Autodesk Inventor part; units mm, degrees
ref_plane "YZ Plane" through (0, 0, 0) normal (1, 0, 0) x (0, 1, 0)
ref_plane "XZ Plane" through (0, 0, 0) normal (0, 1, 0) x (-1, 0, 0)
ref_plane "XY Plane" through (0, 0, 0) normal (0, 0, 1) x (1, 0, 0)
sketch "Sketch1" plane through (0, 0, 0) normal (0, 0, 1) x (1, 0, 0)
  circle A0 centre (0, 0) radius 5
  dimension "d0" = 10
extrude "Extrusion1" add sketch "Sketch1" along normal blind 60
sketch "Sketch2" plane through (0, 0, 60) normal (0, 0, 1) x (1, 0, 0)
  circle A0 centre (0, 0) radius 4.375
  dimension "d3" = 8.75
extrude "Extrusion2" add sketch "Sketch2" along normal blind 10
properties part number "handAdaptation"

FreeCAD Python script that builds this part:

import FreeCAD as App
import Part
import Sketcher
Q = App.Units.Quantity

doc = App.newDocument("Part")
params = doc.addObject("Spreadsheet::Sheet", "Params")
for row, (alias, value) in enumerate([
    ("sketch1_diameter", "10 mm"),
    ("pad1_length", "60 mm"),
    ("sketch2_diameter", "8.75 mm"),
    ("pad2_length", "10 mm"),
], start=1):
    params.set(f"A{row}", alias)
    params.set(f"B{row}", "=" + value)
    params.setAlias(f"B{row}", alias)

body = doc.addObject("PartDesign::Body", "Body")

sketch1 = body.newObject("Sketcher::SketchObject", "Sketch")
sketch1.AttachmentSupport = (doc.getObject("XY_Plane"), [""])
sketch1.MapMode = "FlatFace"
sketch1.addGeometry(Part.Circle(App.Vector(0, 0, 0), App.Vector(0, 0, 1), 5), False)
sketch1.addConstraint(Sketcher.Constraint("Coincident", 0, 3, -1, 1))
sketch1.addConstraint(Sketcher.Constraint("Diameter", 0, Q("10 mm")))
sketch1.setExpression("Constraints[1]", "Params.sketch1_diameter")
pad1 = body.newObject("PartDesign::Pad", "Pad")
pad1.Profile = sketch1
pad1.setExpression("Length", "Params.pad1_length")

sketch2 = body.newObject("Sketcher::SketchObject", "Sketch001")
sketch2.AttachmentSupport = (doc.getObject("XY_Plane"), [""])
sketch2.MapMode = "FlatFace"
sketch2.AttachmentOffset = App.Placement(App.Vector(0, 0, 60), App.Rotation())
sketch2.addGeometry(Part.Circle(App.Vector(0, 0, 0), App.Vector(0, 0, 1), 4.4), False)
sketch2.addConstraint(Sketcher.Constraint("Coincident", 0, 3, -1, 1))
sketch2.addConstraint(Sketcher.Constraint("Diameter", 0, Q("8.75 mm")))
sketch2.setExpression("Constraints[1]", "Params.sketch2_diameter")
pad2 = body.newObject("PartDesign::Pad", "Pad001")
pad2.Profile = sketch2
pad2.setExpression("Length", "Params.pad2_length")

doc.recompute()
